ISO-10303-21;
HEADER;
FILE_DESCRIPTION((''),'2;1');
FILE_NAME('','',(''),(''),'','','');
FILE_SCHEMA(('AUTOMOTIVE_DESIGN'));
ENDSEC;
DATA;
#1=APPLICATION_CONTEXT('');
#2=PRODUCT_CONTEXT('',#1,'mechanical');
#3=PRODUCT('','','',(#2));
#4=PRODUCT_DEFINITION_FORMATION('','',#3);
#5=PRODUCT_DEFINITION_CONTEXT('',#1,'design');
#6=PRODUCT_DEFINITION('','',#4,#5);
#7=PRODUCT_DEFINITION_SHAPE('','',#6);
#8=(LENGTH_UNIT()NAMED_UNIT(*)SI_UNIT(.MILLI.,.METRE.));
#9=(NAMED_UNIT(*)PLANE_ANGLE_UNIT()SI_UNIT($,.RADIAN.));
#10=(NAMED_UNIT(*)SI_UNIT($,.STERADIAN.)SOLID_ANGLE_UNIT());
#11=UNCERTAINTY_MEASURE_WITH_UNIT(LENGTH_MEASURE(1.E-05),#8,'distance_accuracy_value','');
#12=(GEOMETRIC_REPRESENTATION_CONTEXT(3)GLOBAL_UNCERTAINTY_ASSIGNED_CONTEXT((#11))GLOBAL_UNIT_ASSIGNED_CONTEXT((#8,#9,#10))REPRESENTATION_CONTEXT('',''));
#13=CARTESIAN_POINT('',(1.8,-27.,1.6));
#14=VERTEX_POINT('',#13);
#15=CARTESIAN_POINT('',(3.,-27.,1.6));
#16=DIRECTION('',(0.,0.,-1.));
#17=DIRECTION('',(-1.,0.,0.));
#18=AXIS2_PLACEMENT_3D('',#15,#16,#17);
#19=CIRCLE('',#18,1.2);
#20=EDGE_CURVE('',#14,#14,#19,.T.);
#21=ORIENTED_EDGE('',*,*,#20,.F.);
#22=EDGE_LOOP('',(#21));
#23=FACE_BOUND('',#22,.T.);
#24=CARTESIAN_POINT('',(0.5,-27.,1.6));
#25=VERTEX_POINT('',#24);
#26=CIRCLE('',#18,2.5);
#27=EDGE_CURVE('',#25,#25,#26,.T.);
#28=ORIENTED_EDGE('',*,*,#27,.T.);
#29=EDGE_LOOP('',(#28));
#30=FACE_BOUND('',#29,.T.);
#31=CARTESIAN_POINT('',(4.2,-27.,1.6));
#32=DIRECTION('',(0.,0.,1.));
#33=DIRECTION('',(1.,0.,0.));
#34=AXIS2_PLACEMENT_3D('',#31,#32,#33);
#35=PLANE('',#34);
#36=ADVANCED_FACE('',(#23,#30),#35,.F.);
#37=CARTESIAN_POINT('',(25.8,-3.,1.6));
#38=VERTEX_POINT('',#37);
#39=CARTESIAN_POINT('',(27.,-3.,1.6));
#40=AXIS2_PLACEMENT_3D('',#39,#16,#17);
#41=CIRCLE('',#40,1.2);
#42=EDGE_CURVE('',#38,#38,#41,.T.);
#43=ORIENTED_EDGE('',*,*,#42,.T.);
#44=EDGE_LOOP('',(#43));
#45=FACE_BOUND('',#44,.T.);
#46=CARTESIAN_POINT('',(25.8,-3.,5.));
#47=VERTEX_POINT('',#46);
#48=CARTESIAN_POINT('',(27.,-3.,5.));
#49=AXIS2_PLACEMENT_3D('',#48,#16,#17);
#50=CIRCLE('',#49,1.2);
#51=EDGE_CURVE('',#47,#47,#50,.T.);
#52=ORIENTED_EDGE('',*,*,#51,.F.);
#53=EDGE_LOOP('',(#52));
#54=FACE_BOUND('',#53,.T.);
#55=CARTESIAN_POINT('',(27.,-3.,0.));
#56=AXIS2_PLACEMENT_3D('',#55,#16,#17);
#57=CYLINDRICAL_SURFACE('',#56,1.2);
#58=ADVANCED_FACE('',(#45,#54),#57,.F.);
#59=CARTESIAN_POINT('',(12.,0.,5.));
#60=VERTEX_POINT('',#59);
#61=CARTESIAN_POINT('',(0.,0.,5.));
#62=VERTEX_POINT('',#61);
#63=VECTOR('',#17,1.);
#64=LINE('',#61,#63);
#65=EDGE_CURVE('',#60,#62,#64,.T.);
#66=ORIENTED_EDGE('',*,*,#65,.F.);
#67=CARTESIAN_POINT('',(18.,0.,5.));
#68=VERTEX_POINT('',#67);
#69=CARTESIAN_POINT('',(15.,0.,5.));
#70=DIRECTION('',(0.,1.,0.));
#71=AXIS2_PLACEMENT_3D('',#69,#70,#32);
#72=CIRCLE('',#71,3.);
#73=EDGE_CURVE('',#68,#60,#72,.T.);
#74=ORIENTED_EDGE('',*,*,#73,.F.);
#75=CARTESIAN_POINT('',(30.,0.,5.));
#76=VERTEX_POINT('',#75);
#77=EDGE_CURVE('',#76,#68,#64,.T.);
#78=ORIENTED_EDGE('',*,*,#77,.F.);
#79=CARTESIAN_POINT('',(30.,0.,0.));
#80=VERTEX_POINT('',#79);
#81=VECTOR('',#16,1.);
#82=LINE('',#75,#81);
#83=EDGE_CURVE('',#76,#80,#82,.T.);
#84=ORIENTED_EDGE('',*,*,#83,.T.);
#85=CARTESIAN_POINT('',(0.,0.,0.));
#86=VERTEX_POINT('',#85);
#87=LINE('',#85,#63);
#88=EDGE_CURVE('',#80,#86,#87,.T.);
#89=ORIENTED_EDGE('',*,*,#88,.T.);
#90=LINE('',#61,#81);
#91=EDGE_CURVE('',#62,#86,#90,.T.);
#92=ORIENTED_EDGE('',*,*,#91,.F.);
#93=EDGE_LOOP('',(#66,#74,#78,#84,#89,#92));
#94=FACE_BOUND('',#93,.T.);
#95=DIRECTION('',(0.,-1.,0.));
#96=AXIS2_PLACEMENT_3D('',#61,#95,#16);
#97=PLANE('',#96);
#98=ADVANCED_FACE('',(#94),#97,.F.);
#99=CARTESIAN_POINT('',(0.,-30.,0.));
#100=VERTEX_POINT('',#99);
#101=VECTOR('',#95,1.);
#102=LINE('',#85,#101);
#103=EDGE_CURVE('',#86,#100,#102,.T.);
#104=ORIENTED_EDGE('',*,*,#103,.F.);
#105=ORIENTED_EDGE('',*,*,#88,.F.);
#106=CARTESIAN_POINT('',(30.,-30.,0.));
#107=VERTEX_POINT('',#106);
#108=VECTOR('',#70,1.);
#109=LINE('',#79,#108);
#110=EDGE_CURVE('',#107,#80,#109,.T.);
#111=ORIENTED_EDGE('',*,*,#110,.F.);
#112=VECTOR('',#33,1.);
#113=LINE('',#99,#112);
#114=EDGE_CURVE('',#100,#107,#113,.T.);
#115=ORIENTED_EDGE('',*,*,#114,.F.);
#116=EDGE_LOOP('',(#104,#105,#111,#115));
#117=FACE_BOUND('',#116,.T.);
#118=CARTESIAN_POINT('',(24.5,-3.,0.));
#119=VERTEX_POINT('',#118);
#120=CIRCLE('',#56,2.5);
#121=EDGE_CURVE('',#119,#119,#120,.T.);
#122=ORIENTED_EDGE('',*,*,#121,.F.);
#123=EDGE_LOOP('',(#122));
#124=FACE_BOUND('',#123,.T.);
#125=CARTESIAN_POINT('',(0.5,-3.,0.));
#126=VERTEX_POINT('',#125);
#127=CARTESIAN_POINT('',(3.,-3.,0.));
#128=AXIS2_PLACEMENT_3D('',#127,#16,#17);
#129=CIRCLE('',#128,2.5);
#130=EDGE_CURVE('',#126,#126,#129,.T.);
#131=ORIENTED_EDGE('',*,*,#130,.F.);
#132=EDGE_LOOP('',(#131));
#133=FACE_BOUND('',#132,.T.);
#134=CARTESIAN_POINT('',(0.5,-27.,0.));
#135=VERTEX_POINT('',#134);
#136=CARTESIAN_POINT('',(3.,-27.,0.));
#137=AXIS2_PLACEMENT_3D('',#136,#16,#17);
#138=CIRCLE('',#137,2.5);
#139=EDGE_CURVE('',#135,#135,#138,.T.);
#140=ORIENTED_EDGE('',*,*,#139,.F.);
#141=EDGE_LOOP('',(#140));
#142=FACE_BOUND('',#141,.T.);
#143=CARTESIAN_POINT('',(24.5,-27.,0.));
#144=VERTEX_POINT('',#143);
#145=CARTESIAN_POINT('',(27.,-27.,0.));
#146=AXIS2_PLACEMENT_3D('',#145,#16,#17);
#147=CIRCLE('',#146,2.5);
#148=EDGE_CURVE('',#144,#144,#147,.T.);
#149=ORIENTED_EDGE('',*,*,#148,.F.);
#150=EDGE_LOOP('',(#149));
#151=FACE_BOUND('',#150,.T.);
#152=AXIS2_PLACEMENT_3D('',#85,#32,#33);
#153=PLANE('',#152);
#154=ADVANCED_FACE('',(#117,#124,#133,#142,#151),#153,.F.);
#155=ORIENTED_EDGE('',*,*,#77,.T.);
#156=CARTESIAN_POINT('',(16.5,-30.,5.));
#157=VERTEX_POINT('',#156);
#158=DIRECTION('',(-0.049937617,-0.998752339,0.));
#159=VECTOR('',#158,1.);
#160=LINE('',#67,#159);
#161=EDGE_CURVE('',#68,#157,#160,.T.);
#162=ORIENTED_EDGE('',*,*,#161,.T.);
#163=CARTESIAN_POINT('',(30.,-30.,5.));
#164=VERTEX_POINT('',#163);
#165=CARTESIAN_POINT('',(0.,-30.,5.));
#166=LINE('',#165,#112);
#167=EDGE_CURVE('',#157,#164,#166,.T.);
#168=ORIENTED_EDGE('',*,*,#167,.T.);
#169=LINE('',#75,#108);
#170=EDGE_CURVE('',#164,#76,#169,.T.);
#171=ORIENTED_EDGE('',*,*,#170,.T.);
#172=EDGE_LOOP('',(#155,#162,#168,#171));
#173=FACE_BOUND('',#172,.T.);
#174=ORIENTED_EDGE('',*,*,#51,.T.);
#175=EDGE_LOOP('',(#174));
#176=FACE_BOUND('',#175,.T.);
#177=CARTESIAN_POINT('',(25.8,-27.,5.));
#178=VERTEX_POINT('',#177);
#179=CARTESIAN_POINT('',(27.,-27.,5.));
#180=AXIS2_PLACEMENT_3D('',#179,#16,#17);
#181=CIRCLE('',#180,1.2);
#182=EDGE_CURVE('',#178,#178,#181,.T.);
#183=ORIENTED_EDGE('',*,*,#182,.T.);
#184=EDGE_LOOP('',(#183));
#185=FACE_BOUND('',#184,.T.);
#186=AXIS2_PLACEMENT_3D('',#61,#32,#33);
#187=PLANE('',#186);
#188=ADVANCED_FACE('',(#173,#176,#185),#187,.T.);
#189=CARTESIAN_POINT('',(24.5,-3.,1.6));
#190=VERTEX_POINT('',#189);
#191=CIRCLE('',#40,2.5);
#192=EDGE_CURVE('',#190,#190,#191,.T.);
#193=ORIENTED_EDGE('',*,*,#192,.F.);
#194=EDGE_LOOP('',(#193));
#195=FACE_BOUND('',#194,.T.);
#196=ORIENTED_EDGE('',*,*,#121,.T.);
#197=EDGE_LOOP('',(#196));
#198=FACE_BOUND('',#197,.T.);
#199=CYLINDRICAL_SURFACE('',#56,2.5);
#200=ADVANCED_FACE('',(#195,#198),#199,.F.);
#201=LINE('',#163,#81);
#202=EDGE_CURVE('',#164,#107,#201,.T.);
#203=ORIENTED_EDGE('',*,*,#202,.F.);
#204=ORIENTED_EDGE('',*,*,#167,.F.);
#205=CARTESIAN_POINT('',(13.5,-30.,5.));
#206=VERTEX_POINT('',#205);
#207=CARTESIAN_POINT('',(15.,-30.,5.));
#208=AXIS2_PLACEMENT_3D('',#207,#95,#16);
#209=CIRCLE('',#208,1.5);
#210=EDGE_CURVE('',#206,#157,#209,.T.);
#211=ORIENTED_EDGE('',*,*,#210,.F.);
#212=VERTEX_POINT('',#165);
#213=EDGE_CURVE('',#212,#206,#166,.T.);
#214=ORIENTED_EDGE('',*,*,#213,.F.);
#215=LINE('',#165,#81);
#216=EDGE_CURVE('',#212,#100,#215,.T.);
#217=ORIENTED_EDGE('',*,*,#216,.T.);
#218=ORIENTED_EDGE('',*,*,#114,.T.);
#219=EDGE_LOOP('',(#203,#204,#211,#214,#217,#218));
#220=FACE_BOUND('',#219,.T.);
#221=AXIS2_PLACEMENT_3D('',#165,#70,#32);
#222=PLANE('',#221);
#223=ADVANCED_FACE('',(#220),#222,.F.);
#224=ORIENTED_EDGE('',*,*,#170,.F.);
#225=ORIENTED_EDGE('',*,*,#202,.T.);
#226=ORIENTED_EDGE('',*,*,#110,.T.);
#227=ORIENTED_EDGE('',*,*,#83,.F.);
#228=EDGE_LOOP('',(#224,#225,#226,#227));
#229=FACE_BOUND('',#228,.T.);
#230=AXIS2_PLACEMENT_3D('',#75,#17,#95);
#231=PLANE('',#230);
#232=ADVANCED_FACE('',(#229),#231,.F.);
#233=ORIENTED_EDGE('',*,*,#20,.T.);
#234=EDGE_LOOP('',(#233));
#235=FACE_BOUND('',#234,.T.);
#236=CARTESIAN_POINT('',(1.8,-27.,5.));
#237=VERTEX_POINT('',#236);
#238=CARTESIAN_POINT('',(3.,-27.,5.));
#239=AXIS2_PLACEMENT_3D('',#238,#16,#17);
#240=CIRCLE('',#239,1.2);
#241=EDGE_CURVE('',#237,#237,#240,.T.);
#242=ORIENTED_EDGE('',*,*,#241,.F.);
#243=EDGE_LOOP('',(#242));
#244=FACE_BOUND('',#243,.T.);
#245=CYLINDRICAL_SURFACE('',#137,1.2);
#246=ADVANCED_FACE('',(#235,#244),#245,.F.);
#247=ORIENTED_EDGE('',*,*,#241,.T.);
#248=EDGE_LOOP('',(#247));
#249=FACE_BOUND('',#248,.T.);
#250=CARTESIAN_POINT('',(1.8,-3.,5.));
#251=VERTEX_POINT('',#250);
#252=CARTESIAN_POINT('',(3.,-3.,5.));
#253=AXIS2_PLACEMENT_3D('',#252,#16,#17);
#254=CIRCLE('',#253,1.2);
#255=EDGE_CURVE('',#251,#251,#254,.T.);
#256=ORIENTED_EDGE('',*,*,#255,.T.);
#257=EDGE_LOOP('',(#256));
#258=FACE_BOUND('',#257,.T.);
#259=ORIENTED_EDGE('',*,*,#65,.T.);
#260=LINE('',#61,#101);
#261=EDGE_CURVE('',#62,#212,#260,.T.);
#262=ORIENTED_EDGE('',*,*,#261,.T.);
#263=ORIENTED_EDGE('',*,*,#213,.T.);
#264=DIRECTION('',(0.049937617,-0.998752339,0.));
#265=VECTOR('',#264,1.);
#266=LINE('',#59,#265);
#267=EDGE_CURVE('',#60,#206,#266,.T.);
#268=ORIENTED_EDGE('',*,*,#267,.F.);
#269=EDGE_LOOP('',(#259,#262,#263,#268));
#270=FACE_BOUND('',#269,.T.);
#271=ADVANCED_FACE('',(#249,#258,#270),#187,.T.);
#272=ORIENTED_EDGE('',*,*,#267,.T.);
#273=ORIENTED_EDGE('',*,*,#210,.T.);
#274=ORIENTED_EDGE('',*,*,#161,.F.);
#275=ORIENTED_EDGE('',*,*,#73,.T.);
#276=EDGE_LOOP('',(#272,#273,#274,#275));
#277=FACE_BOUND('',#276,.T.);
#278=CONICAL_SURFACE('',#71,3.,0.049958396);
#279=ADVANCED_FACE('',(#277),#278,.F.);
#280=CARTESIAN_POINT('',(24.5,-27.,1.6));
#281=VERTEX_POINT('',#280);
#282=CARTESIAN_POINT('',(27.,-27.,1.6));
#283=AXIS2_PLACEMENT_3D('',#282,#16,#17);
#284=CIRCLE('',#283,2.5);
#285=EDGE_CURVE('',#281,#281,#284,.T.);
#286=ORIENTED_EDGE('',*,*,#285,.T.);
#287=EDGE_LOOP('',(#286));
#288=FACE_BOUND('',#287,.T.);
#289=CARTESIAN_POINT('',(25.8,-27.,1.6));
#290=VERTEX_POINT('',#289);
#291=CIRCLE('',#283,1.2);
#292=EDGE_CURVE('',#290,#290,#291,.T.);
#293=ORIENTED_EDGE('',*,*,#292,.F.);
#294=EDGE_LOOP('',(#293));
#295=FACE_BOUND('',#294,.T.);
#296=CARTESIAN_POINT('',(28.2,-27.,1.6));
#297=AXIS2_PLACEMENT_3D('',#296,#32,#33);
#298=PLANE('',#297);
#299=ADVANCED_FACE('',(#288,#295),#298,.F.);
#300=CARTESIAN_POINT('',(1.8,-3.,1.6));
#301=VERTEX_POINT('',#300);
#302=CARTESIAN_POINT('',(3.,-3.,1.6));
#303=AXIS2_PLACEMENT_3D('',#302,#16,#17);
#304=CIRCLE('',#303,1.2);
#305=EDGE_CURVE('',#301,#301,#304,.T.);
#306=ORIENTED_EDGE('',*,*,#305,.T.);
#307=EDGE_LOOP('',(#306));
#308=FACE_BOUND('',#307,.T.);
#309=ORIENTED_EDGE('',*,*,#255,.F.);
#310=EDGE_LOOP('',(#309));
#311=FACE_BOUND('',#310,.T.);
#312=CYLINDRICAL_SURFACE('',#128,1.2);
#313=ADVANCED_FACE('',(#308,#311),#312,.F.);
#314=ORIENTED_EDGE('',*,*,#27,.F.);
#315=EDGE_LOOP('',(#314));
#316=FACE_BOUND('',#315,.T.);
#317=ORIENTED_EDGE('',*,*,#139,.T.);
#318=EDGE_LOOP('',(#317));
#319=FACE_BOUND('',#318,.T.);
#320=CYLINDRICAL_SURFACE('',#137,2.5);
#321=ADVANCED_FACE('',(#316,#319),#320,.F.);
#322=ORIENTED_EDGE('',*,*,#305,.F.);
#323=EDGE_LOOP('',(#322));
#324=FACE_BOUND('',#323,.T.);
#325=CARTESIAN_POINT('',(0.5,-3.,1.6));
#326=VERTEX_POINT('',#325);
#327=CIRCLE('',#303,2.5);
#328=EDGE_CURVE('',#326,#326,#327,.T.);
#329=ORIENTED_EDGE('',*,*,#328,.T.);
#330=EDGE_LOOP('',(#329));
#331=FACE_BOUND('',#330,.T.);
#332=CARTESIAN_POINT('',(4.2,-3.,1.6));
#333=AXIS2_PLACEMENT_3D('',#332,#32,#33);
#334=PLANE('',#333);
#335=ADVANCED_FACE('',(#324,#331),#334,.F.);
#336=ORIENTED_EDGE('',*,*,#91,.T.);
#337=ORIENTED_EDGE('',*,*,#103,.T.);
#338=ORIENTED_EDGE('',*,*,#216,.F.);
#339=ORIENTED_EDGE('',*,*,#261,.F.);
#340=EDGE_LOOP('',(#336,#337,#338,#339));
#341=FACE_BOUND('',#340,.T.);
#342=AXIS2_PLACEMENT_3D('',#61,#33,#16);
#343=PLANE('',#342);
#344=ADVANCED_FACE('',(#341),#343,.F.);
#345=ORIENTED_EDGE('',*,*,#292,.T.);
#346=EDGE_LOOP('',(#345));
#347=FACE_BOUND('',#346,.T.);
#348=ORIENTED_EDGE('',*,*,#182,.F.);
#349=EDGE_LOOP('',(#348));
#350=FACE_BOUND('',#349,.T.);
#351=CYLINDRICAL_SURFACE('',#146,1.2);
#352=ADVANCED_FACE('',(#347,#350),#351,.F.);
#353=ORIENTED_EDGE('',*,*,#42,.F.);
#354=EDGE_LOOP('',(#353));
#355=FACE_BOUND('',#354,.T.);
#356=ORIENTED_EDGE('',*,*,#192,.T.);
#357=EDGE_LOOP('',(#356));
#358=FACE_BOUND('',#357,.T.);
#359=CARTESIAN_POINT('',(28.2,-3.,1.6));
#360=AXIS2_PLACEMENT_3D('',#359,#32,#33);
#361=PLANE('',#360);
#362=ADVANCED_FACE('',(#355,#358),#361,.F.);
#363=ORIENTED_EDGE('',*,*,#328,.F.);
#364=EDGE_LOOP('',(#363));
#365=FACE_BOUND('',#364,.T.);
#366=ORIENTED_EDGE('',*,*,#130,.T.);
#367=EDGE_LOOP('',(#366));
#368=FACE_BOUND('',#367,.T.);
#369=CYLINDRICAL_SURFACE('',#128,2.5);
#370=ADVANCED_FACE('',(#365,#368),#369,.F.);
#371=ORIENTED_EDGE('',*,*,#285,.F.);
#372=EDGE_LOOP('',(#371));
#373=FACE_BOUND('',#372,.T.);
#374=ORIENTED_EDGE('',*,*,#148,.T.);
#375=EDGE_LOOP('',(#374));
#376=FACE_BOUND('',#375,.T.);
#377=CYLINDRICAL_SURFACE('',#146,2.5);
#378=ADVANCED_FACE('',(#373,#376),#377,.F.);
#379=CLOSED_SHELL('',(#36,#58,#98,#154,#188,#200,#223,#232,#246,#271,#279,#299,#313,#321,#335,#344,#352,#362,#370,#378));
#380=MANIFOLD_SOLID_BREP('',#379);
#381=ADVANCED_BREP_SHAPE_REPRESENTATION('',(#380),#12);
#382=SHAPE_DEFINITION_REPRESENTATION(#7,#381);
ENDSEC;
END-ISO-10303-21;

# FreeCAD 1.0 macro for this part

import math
import FreeCAD as App
import Part
import Sketcher
from FreeCAD import Vector

doc = App.newDocument("Part")
params = doc.addObject("Spreadsheet::Sheet", "Params")
for row, (alias, value) in enumerate([
    ("sketch1_width", "30 mm"),
    ("pad1_length", "5 mm"),
    ("sketch2_radius", "3 mm"),
    ("sketch3_radius", "1.5 mm"),
    ("sketch4_diameter", "2.4 mm"),
    ("hole_diameter", "2.4 mm"),
    ("hole_cbore_diameter", "5 mm"),
    ("hole_cbore_depth", "1.6 mm"),
], start=1):
    params.set(f"A{row}", alias)
    params.set(f"B{row}", "=" + value)
    params.setAlias(f"B{row}", alias)

body = doc.addObject("PartDesign::Body", "Body")

sketch1 = body.newObject("Sketcher::SketchObject", "Sketch")
sketch1.AttachmentSupport = (doc.getObject("XY_Plane"), [""])
sketch1.MapMode = "FlatFace"
sketch1.addGeometry(Part.LineSegment(Vector(0, 0, 0), Vector(0, -30, 0)), False)
sketch1.addGeometry(Part.LineSegment(Vector(0, -30, 0), Vector(30, -30, 0)), False)
sketch1.addGeometry(Part.LineSegment(Vector(30, -30, 0), Vector(30, 0, 0)), False)
sketch1.addGeometry(Part.LineSegment(Vector(30, 0, 0), Vector(0, 0, 0)), False)
sketch1.addConstraint(Sketcher.Constraint("Coincident", 0, 2, 1, 1))
sketch1.addConstraint(Sketcher.Constraint("Coincident", 1, 2, 2, 1))
sketch1.addConstraint(Sketcher.Constraint("Coincident", 2, 2, 3, 1))
sketch1.addConstraint(Sketcher.Constraint("Coincident", 3, 2, 0, 1))
sketch1.addConstraint(Sketcher.Constraint("Vertical", 0))
sketch1.addConstraint(Sketcher.Constraint("Horizontal", 1))
sketch1.addConstraint(Sketcher.Constraint("Vertical", 2))
sketch1.addConstraint(Sketcher.Constraint("Horizontal", 3))
sketch1.addConstraint(Sketcher.Constraint("Coincident", 3, 2, -1, 1))
sketch1.addConstraint(Sketcher.Constraint("Equal", 3, 0))
sketch1.addConstraint(Sketcher.Constraint("DistanceX", 1, 1, 1, 2, 30.0))
sketch1.setExpression("Constraints[10]", "Params.sketch1_width")
pad1 = body.newObject("PartDesign::Pad", "Pad")
pad1.Profile = sketch1
pad1.setExpression("Length", "Params.pad1_length")

sketch2 = body.newObject("Sketcher::SketchObject", "Sketch001")
sketch2.AttachmentSupport = (doc.getObject("XZ_Plane"), [""])
sketch2.MapMode = "FlatFace"
sketch2.addGeometry(Part.LineSegment(Vector(12, 5, 0), Vector(18, 5, 0)), False)
sketch2.addGeometry(Part.ArcOfCircle(Part.Circle(Vector(15, 5, 0), Vector(0, 0, 1), 3), math.radians(180), math.radians(360)), False)
sketch2.addConstraint(Sketcher.Constraint("Coincident", 0, 1, 1, 1))
sketch2.addConstraint(Sketcher.Constraint("Coincident", 1, 2, 0, 2))
sketch2.addConstraint(Sketcher.Constraint("Horizontal", 0))
sketch2.addConstraint(Sketcher.Constraint("Horizontal", 1, 3, 0, 1))
sketch2.addConstraint(Sketcher.Constraint("Radius", 1, 3.0))
sketch2.addConstraint(Sketcher.Constraint("DistanceX", -1, 1, 1, 3, 15.0))
sketch2.addConstraint(Sketcher.Constraint("DistanceY", -1, 1, 1, 3, 5.0))
sketch2.setExpression("Constraints[4]", "Params.sketch2_radius")

sketch3 = body.newObject("Sketcher::SketchObject", "Sketch002")
sketch3.AttachmentSupport = (doc.getObject("XZ_Plane"), [""])
sketch3.MapMode = "FlatFace"
sketch3.AttachmentOffset = App.Placement(Vector(0, 0, 30), App.Rotation())
sketch3.addGeometry(Part.LineSegment(Vector(16.5, 5, 0), Vector(13.5, 5, 0)), False)
sketch3.addGeometry(Part.ArcOfCircle(Part.Circle(Vector(15, 5, 0), Vector(0, 0, 1), 1.5), math.radians(180), math.radians(360)), False)
sketch3.addConstraint(Sketcher.Constraint("Coincident", 0, 1, 1, 2))
sketch3.addConstraint(Sketcher.Constraint("Coincident", 1, 1, 0, 2))
sketch3.addConstraint(Sketcher.Constraint("Horizontal", 0))
sketch3.addConstraint(Sketcher.Constraint("Horizontal", 1, 3, 0, 1))
sketch3.addConstraint(Sketcher.Constraint("Radius", 1, 1.5))
sketch3.addConstraint(Sketcher.Constraint("DistanceX", -1, 1, 1, 3, 15.0))
sketch3.addConstraint(Sketcher.Constraint("DistanceY", -1, 1, 1, 3, 5.0))
sketch3.setExpression("Constraints[4]", "Params.sketch3_radius")

subtractiveloft = body.newObject("PartDesign::SubtractiveLoft", "SubtractiveLoft")
subtractiveloft.Profile = sketch2
subtractiveloft.Sections = [sketch3]

sketch4 = body.newObject("Sketcher::SketchObject", "Sketch003")
sketch4.AttachmentSupport = (doc.getObject("XY_Plane"), [""])
sketch4.MapMode = "FlatFace"
sketch4.addGeometry(Part.Circle(Vector(27, -3, 0), Vector(0, 0, 1), 1.2), False)
sketch4.addGeometry(Part.Circle(Vector(3, -3, 0), Vector(0, 0, 1), 1.2), False)
sketch4.addGeometry(Part.Circle(Vector(3, -27, 0), Vector(0, 0, 1), 1.2), False)
sketch4.addGeometry(Part.Circle(Vector(27, -27, 0), Vector(0, 0, 1), 1.2), False)
sketch4.addConstraint(Sketcher.Constraint("Equal", 0, 1))
sketch4.addConstraint(Sketcher.Constraint("Equal", 1, 2))
sketch4.addConstraint(Sketcher.Constraint("Equal", 2, 3))
sketch4.addConstraint(Sketcher.Constraint("Horizontal", 0, 3, 1, 3))
sketch4.addConstraint(Sketcher.Constraint("Horizontal", 2, 3, 3, 3))
sketch4.addConstraint(Sketcher.Constraint("Vertical", 1, 3, 2, 3))
sketch4.addConstraint(Sketcher.Constraint("Vertical", 0, 3, 3, 3))
sketch4.addConstraint(Sketcher.Constraint("Diameter", 0, 2.4))
sketch4.addConstraint(Sketcher.Constraint("DistanceX", -1, 1, 0, 3, 27.0))
sketch4.addConstraint(Sketcher.Constraint("DistanceY", 0, 3, -1, 1, 3.0))
sketch4.addConstraint(Sketcher.Constraint("DistanceX", -1, 1, 1, 3, 3.0))
sketch4.addConstraint(Sketcher.Constraint("DistanceY", 2, 3, -1, 1, 27.0))
sketch4.setExpression("Constraints[7]", "Params.sketch4_diameter")
doc.recompute()
hole = body.newObject("PartDesign::Hole", "Hole")
hole.Profile = sketch4
hole.ThreadType = "None"
hole.setExpression("Diameter", "Params.hole_diameter")
hole.DepthType = "ThroughAll"
hole.HoleCutType = "Counterbore"
hole.setExpression("HoleCutDiameter", "Params.hole_cbore_diameter")
hole.setExpression("HoleCutDepth", "Params.hole_cbore_depth")
hole.Reversed = True

doc.recompute()
